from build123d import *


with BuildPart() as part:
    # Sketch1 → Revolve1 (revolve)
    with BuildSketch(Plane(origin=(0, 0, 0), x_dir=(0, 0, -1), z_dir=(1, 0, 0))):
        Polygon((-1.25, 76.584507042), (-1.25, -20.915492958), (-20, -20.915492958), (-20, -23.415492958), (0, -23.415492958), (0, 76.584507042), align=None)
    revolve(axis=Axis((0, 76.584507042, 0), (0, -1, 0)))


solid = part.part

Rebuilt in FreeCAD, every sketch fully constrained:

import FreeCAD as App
import Part
import Sketcher

V = App.Vector

doc = App.newDocument("Part")
params = doc.addObject("Spreadsheet::Sheet", "Params")
for row, (alias, value) in enumerate([
    ("sketch1_width", "100 mm"),
    ("sketch1_height", "20 mm"),
    ("sketch1_width2", "97.5 mm"),
    ("sketch1_height2", "18.75 mm"),
    ("revolution_angle", "360 deg"),
], start=1):
    params.set(f"A{row}", alias)
    params.set(f"B{row}", "=" + value)
    params.setAlias(f"B{row}", alias)

body = doc.addObject("PartDesign::Body", "Body")

# Sketch on YZ plane
sketch1 = body.newObject("Sketcher::SketchObject", "Sketch")
sketch1.AttachmentSupport = (doc.getObject("YZ_Plane"), [""])
sketch1.MapMode = "FlatFace"
sketch1.addGeometry(Part.LineSegment(V(76.584507, 1.25, 0), V(-20.915493, 1.25, 0)), False)
sketch1.addGeometry(Part.LineSegment(V(-20.915493, 1.25, 0), V(-20.915493, 20, 0)), False)
sketch1.addGeometry(Part.LineSegment(V(-20.915493, 20, 0), V(-23.415493, 20, 0)), False)
sketch1.addGeometry(Part.LineSegment(V(-23.415493, 20, 0), V(-23.415493, 0, 0)), False)
sketch1.addGeometry(Part.LineSegment(V(-23.415493, 0, 0), V(76.584507, 0, 0)), False)
sketch1.addGeometry(Part.LineSegment(V(76.584507, 0, 0), V(76.584507, 1.25, 0)), False)
sketch1.addConstraint(Sketcher.Constraint("Coincident", 0, 2, 1, 1))
sketch1.addConstraint(Sketcher.Constraint("Coincident", 1, 2, 2, 1))
sketch1.addConstraint(Sketcher.Constraint("Coincident", 2, 2, 3, 1))
sketch1.addConstraint(Sketcher.Constraint("Coincident", 3, 2, 4, 1))
sketch1.addConstraint(Sketcher.Constraint("Coincident", 4, 2, 5, 1))
sketch1.addConstraint(Sketcher.Constraint("Coincident", 5, 2, 0, 1))
sketch1.addConstraint(Sketcher.Constraint("Horizontal", 0))
sketch1.addConstraint(Sketcher.Constraint("Vertical", 1))
sketch1.addConstraint(Sketcher.Constraint("Horizontal", 2))
sketch1.addConstraint(Sketcher.Constraint("Vertical", 3))
sketch1.addConstraint(Sketcher.Constraint("Horizontal", 4))
sketch1.addConstraint(Sketcher.Constraint("Vertical", 5))
sketch1.addConstraint(Sketcher.Constraint("PointOnObject", 3, 2, -1))
sketch1.addConstraint(Sketcher.Constraint("DistanceX", 4, 1, 4, 2, 100.0))
sketch1.addConstraint(Sketcher.Constraint("DistanceY", 3, 2, 3, 1, 20.0))
sketch1.addConstraint(Sketcher.Constraint("DistanceX", 0, 2, 0, 1, 97.5))
sketch1.addConstraint(Sketcher.Constraint("DistanceY", 1, 1, 1, 2, 18.75))
sketch1.addConstraint(Sketcher.Constraint("DistanceX", 0, 2, -1, 1, 20.915493))
sketch1.setExpression("Constraints[13]", "Params.sketch1_width")
sketch1.setExpression("Constraints[14]", "Params.sketch1_height")
sketch1.setExpression("Constraints[15]", "Params.sketch1_width2")
sketch1.setExpression("Constraints[16]", "Params.sketch1_height2")
revolution = body.newObject("PartDesign::Revolution", "Revolution")
revolution.Profile = sketch1
revolution.ReferenceAxis = (sketch1, ["H_Axis"])
revolution.setExpression("Angle", "Params.revolution_angle")

doc.recompute()
